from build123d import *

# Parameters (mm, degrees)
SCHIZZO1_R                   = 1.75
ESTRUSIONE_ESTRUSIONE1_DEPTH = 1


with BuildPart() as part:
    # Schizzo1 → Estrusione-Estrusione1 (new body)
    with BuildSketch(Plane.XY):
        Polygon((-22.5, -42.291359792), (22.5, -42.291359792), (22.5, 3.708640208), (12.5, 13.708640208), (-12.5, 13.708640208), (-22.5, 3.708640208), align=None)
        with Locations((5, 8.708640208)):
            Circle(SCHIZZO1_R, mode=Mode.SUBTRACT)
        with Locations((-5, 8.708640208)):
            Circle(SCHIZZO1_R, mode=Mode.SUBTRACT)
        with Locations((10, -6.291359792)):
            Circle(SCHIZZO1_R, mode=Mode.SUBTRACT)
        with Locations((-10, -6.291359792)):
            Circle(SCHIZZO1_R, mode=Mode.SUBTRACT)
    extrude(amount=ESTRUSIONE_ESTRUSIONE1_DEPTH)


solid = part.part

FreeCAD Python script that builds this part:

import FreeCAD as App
import Part
import Sketcher


def add_polygon(sketch, points):
    """Adds a closed chain of lines whose ends are joined by coincident constraints."""
    first, n = sketch.GeometryCount, len(points)
    for a, b in zip(points, points[1:] + points[:1]):
        sketch.addGeometry(Part.LineSegment(App.Vector(*a, 0), App.Vector(*b, 0)), False)
    for i in range(n):
        sketch.addConstraint(Sketcher.Constraint("Coincident", first + i, 2, first + (i + 1) % n, 1))

doc = App.newDocument("Part")
body = doc.addObject("PartDesign::Body", "Body")

# Sketch on XY plane
sketch1 = body.newObject("Sketcher::SketchObject", "Sketch")
sketch1.AttachmentSupport = (doc.getObject("XY_Plane"), [""])
sketch1.MapMode = "FlatFace"
add_polygon(sketch1, [(-22.5, -42.3), (22.5, -42.3), (22.5, 3.7), (12.5, 13.7), (-12.5, 13.7), (-22.5, 3.7)])  # lines 0-5
sketch1.addGeometry(Part.Circle(App.Vector(-10, -6.3, 0), App.Vector(0, 0, 1), 1.8), False)  # 6
sketch1.addGeometry(Part.Circle(App.Vector(10, -6.3, 0), App.Vector(0, 0, 1), 1.8), False)  # 7
sketch1.addGeometry(Part.Circle(App.Vector(-5, 8.7, 0), App.Vector(0, 0, 1), 1.8), False)  # 8
sketch1.addGeometry(Part.Circle(App.Vector(5, 8.7, 0), App.Vector(0, 0, 1), 1.8), False)  # 9
sketch1.addConstraint([
    Sketcher.Constraint("Horizontal", 0),
    Sketcher.Constraint("Vertical", 1),
    Sketcher.Constraint("Horizontal", 3),
    Sketcher.Constraint("Vertical", 5),
    Sketcher.Constraint("Equal", 6, 7),
    Sketcher.Constraint("Equal", 7, 8),
    Sketcher.Constraint("Equal", 8, 9),
    Sketcher.Constraint("Symmetric", 6, 3, 7, 3, -2),
    Sketcher.Constraint("Symmetric", 8, 3, 9, 3, -2),
    Sketcher.Constraint("Symmetric", 1, 2, 4, 2, -2),
    Sketcher.Constraint("Perpendicular", 2, 4),
    Sketcher.Constraint("Equal", 2, 4),
    Sketcher.Constraint("Diameter", 6, 3.5),
    Sketcher.Constraint("DistanceX", 0, 1, 0, 2, 45.0),
    Sketcher.Constraint("DistanceX", 3, 2, 3, 1, 25.0),
    Sketcher.Constraint("DistanceY", 1, 1, 1, 2, 46.0),
    Sketcher.Constraint("DistanceX", 6, 3, -1, 1, 10.0),
    Sketcher.Constraint("DistanceX", 8, 3, -1, 1, 5.0),
    Sketcher.Constraint("DistanceY", 6, 3, 8, 3, 15.0),
    Sketcher.Constraint("DistanceY", 0, 2, 7, 3, 36.0),
    Sketcher.Constraint("DistanceY", 6, 3, -1, 1, 6.29136),
])
pad1 = body.newObject("PartDesign::Pad", "Pad")
pad1.Profile = sketch1
pad1.Length = 1

doc.recompute()
